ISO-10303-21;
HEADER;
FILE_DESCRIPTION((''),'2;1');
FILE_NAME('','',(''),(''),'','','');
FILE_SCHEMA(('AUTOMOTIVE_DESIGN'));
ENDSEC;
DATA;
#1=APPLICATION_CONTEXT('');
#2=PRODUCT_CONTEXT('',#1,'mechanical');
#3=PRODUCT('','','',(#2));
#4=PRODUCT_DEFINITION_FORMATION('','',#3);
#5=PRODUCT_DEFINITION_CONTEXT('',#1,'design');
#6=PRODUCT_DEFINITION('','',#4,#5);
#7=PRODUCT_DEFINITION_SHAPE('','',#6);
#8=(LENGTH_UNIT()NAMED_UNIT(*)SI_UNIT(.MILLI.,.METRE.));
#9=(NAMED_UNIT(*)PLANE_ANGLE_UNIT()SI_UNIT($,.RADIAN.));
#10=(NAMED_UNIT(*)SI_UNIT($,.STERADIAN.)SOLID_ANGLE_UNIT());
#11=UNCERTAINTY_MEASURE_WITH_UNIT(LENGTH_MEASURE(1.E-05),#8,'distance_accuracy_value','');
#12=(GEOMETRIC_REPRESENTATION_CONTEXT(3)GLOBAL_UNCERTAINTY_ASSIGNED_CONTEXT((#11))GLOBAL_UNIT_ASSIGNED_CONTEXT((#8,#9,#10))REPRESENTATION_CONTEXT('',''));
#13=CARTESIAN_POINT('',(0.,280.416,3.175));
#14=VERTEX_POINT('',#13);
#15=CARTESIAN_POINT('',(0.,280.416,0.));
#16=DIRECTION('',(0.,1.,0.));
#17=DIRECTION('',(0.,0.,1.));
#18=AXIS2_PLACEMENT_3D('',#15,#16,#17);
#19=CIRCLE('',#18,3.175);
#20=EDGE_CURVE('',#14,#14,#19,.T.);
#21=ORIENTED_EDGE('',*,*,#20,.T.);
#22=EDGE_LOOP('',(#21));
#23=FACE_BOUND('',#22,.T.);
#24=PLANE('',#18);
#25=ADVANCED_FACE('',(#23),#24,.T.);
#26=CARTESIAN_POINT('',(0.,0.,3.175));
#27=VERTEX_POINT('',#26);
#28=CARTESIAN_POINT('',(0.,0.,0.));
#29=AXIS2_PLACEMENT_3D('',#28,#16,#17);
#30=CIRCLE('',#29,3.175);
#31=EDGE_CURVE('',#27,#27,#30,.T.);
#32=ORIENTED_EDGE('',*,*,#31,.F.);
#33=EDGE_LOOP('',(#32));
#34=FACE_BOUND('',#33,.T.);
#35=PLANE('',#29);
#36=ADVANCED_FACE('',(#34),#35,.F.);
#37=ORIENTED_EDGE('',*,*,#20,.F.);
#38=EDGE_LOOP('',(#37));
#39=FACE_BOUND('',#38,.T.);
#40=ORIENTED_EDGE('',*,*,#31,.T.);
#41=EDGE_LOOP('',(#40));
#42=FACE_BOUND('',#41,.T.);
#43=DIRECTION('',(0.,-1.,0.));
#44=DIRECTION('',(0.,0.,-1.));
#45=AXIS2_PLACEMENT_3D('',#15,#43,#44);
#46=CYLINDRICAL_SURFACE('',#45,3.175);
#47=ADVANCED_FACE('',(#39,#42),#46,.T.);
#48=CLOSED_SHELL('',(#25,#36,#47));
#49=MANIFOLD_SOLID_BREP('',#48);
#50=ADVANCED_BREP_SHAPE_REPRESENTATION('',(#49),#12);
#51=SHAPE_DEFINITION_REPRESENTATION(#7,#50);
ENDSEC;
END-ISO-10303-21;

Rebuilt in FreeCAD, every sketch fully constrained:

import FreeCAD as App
import Part
import Sketcher
from FreeCAD import Vector
Q = App.Units.Quantity

doc = App.newDocument("Part")
params = doc.addObject("Spreadsheet::Sheet", "Params")
for row, (alias, value) in enumerate([
    ("sketch1_diameter", "0.25 in"),
    ("pad1_length", "11.04 in"),
], start=1):
    params.set(f"A{row}", alias)
    params.set(f"B{row}", "=" + value)
    params.setAlias(f"B{row}", alias)

body = doc.addObject("PartDesign::Body", "Body")

sketch1 = body.newObject("Sketcher::SketchObject", "Sketch")
sketch1.AttachmentSupport = (doc.getObject("XZ_Plane"), [""])
sketch1.MapMode = "FlatFace"
sketch1.addGeometry(Part.Circle(Vector(0, 0, 0), Vector(0, 0, 1), 3.175), False)
sketch1.addConstraint([
    Sketcher.Constraint("Coincident", 0, 3, -1, 1),
    Sketcher.Constraint("Diameter", 0, Q("0.25 in")),
])
sketch1.setExpression("Constraints[1]", "Params.sketch1_diameter")
pad1 = body.newObject("PartDesign::Pad", "Pad")
pad1.Profile = sketch1
pad1.setExpression("Length", "Params.pad1_length")
pad1.Reversed = True

doc.recompute()
